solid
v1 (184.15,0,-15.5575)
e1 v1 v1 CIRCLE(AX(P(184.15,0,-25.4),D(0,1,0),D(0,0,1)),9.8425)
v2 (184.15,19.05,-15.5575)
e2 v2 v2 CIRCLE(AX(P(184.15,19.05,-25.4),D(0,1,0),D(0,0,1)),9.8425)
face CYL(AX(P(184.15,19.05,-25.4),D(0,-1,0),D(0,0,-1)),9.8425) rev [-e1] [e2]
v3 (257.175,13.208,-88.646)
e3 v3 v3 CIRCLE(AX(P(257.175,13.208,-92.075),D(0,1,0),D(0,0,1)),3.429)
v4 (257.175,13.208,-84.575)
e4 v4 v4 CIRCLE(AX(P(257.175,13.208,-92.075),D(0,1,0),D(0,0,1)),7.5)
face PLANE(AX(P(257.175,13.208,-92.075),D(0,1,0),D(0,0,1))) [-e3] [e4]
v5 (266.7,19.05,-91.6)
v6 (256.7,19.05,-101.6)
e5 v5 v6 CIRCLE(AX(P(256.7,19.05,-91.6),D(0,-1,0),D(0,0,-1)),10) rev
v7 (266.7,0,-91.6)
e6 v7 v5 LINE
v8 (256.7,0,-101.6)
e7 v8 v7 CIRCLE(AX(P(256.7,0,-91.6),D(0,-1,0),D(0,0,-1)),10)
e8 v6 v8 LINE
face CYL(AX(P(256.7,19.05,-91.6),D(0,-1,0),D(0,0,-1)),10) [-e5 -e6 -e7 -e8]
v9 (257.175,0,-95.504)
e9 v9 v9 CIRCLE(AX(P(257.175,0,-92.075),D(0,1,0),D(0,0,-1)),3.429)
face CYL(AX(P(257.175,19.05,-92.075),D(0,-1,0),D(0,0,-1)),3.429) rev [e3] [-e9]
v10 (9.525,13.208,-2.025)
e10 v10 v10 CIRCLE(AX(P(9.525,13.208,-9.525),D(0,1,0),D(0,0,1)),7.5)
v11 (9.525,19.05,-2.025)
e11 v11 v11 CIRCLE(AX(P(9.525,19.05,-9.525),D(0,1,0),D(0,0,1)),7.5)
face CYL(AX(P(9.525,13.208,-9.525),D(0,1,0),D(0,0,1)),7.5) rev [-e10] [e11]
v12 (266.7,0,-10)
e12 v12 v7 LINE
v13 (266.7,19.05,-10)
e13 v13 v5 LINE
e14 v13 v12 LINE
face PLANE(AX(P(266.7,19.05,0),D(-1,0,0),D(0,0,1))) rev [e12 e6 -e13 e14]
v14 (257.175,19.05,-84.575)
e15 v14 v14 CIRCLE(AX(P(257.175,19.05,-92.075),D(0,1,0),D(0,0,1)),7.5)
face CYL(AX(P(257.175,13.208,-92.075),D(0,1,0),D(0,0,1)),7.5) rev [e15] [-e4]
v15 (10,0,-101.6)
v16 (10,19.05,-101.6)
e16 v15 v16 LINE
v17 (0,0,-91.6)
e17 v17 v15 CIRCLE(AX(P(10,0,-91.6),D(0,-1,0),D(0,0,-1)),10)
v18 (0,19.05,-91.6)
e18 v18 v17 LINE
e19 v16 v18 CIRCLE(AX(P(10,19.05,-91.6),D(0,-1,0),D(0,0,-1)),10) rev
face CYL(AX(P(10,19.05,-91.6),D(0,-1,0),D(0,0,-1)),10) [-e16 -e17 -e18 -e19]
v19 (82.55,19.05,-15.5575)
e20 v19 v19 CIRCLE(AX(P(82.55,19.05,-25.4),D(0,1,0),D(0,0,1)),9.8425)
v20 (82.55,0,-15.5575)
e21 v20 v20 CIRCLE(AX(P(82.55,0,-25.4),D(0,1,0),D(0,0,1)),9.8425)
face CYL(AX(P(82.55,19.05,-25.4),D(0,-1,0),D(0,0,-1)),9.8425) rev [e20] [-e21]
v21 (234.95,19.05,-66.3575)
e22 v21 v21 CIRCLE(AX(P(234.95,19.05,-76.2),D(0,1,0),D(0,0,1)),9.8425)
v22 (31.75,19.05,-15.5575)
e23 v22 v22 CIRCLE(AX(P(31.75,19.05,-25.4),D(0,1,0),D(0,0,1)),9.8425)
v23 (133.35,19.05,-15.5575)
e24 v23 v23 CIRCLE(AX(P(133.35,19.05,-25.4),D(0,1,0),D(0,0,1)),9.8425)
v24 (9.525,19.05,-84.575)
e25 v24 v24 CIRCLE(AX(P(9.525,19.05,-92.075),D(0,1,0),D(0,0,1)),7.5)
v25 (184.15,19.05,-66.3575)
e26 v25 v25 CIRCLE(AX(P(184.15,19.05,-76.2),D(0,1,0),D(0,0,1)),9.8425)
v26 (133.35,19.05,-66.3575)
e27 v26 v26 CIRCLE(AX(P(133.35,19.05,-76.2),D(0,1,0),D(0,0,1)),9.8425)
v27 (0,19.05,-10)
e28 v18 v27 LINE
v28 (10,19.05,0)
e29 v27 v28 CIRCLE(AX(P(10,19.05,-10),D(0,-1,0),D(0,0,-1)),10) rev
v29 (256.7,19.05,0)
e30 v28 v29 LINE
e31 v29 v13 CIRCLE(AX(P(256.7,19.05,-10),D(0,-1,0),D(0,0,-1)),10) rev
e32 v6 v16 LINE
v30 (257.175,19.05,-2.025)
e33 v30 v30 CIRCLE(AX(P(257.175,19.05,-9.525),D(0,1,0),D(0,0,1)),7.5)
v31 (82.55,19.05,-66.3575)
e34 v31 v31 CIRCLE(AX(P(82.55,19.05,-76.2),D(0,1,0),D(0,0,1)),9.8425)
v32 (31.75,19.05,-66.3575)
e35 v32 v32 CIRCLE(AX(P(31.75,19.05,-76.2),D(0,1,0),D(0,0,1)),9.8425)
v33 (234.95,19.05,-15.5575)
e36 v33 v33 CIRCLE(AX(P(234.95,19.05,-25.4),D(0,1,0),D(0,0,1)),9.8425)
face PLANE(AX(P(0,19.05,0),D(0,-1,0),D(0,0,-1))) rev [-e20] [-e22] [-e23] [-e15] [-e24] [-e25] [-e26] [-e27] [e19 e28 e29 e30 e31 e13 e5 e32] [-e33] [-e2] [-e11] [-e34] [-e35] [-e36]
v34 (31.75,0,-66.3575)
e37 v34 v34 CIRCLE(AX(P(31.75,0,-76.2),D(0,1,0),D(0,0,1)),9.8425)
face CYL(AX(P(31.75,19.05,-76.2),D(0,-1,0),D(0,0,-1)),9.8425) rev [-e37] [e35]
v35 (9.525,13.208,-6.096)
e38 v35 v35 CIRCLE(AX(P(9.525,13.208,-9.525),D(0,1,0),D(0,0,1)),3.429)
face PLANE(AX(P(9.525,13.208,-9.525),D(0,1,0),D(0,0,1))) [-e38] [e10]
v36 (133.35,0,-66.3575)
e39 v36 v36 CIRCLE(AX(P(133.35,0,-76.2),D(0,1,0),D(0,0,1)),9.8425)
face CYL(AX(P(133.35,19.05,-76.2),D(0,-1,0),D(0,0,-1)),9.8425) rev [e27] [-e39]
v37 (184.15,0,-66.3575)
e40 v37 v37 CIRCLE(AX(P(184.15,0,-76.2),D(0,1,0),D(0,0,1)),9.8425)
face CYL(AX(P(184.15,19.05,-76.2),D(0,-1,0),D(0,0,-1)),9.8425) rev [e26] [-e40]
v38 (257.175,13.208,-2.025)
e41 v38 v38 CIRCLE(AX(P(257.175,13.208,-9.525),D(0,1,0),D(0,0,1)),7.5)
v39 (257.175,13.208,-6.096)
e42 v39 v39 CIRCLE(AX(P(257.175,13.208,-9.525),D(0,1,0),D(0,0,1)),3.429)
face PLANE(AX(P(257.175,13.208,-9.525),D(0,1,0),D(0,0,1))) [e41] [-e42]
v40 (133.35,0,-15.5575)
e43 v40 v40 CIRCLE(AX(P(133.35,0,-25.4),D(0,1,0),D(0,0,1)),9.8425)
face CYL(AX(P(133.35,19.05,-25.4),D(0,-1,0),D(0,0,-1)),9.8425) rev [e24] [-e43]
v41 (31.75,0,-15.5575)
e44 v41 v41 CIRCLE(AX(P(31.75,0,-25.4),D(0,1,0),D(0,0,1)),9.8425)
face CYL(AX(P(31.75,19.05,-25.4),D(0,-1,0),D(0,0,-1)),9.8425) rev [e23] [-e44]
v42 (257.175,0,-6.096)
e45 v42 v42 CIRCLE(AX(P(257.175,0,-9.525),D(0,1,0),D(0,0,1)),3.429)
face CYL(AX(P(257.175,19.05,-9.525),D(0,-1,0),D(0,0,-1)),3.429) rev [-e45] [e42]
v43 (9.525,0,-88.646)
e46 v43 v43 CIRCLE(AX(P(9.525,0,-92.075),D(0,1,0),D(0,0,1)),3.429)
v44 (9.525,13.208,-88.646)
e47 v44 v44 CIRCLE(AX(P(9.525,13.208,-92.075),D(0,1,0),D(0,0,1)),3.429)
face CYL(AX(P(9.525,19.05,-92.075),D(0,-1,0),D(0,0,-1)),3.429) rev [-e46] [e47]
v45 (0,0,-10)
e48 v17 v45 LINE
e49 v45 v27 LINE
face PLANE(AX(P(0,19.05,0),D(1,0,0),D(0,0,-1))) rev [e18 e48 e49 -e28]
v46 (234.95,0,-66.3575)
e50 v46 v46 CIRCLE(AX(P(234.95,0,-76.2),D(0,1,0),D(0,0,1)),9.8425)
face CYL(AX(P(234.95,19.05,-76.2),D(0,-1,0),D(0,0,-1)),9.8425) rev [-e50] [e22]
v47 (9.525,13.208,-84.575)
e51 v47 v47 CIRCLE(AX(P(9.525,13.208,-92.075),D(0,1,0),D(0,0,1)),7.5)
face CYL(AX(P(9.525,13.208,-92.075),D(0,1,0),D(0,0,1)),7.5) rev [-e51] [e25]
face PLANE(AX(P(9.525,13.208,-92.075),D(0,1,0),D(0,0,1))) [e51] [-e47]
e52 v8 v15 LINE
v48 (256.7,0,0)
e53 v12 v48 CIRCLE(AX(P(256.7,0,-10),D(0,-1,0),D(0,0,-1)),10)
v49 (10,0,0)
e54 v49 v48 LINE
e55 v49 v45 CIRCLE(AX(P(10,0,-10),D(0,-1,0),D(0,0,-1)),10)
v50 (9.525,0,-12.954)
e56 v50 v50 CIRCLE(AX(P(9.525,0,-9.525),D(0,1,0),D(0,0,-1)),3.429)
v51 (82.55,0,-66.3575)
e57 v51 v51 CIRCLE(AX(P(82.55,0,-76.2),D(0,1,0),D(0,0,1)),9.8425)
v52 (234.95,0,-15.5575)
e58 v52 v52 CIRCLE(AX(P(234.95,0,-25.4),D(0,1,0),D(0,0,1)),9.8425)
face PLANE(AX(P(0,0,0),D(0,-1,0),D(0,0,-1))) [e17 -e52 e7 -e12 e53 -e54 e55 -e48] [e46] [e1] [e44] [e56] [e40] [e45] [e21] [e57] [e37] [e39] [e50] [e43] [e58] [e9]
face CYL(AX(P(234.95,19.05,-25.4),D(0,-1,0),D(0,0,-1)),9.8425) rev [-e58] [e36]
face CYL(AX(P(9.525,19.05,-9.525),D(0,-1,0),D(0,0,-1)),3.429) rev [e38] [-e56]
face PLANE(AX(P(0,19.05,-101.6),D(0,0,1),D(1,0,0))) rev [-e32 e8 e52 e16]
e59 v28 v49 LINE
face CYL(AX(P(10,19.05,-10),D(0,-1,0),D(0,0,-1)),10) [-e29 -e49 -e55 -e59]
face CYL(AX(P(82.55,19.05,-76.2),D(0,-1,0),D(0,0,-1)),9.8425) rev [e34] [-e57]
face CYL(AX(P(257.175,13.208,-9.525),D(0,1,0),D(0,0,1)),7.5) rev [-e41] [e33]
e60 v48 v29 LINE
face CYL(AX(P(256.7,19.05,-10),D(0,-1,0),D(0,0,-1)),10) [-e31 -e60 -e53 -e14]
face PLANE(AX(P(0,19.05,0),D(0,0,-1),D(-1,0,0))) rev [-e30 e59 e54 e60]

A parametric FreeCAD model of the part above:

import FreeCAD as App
import Part
import Sketcher
from FreeCAD import Vector
Q = App.Units.Quantity


def edges_at(feature, points):
    """Names of the edges that pass closest to the given points."""
    edges = feature.Shape.Edges
    near = lambda p: min(range(len(edges)), key=lambda i: edges[i].distToShape(Part.Vertex(*p))[0])
    return sorted({f"Edge{near(p) + 1}" for p in points})


def add_polygon(sketch, points):
    """Adds a closed chain of lines whose ends are joined by coincident constraints."""
    first, n = sketch.GeometryCount, len(points)
    for a, b in zip(points, points[1:] + points[:1]):
        sketch.addGeometry(Part.LineSegment(App.Vector(*a, 0), App.Vector(*b, 0)), False)
    for i in range(n):
        sketch.addConstraint(Sketcher.Constraint("Coincident", first + i, 2, first + (i + 1) % n, 1))

doc = App.newDocument("Part")
body = doc.addObject("PartDesign::Body", "Body")

# Sketch on XZ plane
sketch1 = body.newObject("Sketcher::SketchObject", "Sketch")
sketch1.AttachmentSupport = (doc.getObject("XZ_Plane"), [""])
sketch1.MapMode = "FlatFace"
add_polygon(sketch1, [(0, -101.6), (0, 0), (266.7, 0), (266.7, -101.6)])  # lines 0-3
sketch1.addGeometry(Part.Circle(Vector(9.5, -9.5, 0), Vector(0, 0, 1), 3.4), False)  # 4
sketch1.addGeometry(Part.Circle(Vector(31.8, -25.4, 0), Vector(0, 0, 1), 9.8), False)  # 5
sketch1.addGeometry(Part.Circle(Vector(82.5, -25.4, 0), Vector(0, 0, 1), 9.8), False)  # 6
sketch1.addGeometry(Part.Circle(Vector(133.3, -25.4, 0), Vector(0, 0, 1), 9.8), False)  # 7
sketch1.addGeometry(Part.Circle(Vector(184.2, -25.4, 0), Vector(0, 0, 1), 9.8), False)  # 8
sketch1.addGeometry(Part.Circle(Vector(257.2, -9.5, 0), Vector(0, 0, 1), 3.4), False)  # 9
sketch1.addGeometry(Part.Circle(Vector(234.9, -25.4, 0), Vector(0, 0, 1), 9.8), False)  # 10
sketch1.addGeometry(Part.Circle(Vector(31.8, -76.2, 0), Vector(0, 0, 1), 9.8), False)  # 11
sketch1.addGeometry(Part.Circle(Vector(9.5, -92.1, 0), Vector(0, 0, 1), 3.4), False)  # 12
sketch1.addGeometry(Part.Circle(Vector(82.5, -76.2, 0), Vector(0, 0, 1), 9.8), False)  # 13
sketch1.addGeometry(Part.Circle(Vector(133.3, -76.2, 0), Vector(0, 0, 1), 9.8), False)  # 14
sketch1.addGeometry(Part.Circle(Vector(184.2, -76.2, 0), Vector(0, 0, 1), 9.8), False)  # 15
sketch1.addGeometry(Part.Circle(Vector(234.9, -76.2, 0), Vector(0, 0, 1), 9.8), False)  # 16
sketch1.addGeometry(Part.Circle(Vector(257.2, -92.1, 0), Vector(0, 0, 1), 3.4), False)  # 17
sketch1.addConstraint([
    Sketcher.Constraint("Vertical", 0),
    Sketcher.Constraint("Horizontal", 1),
    Sketcher.Constraint("Vertical", 2),
    Sketcher.Constraint("Horizontal", 3),
    Sketcher.Constraint("Coincident", 0, 2, -1, 1),
    Sketcher.Constraint("Equal", 5, 6),
    Sketcher.Constraint("Equal", 6, 7),
    Sketcher.Constraint("Equal", 7, 8),
    Sketcher.Constraint("Equal", 4, 9),
    Sketcher.Constraint("Equal", 8, 10),
    Sketcher.Constraint("Equal", 10, 11),
    Sketcher.Constraint("Equal", 9, 12),
    Sketcher.Constraint("Equal", 11, 13),
    Sketcher.Constraint("Equal", 13, 14),
    Sketcher.Constraint("Equal", 14, 15),
    Sketcher.Constraint("Equal", 15, 16),
    Sketcher.Constraint("Equal", 12, 17),
    Sketcher.Constraint("Horizontal", 5, 3, 6, 3),
    Sketcher.Constraint("Horizontal", 6, 3, 7, 3),
    Sketcher.Constraint("Horizontal", 7, 3, 8, 3),
    Sketcher.Constraint("Horizontal", 4, 3, 9, 3),
    Sketcher.Constraint("Horizontal", 8, 3, 10, 3),
    Sketcher.Constraint("Horizontal", 11, 3, 13, 3),
    Sketcher.Constraint("Horizontal", 13, 3, 14, 3),
    Sketcher.Constraint("Horizontal", 14, 3, 15, 3),
    Sketcher.Constraint("Horizontal", 15, 3, 16, 3),
    Sketcher.Constraint("Horizontal", 12, 3, 17, 3),
    Sketcher.Constraint("Vertical", 5, 3, 11, 3),
    Sketcher.Constraint("Vertical", 4, 3, 12, 3),
    Sketcher.Constraint("Vertical", 6, 3, 13, 3),
    Sketcher.Constraint("Vertical", 7, 3, 14, 3),
    Sketcher.Constraint("Vertical", 8, 3, 15, 3),
    Sketcher.Constraint("Vertical", 10, 3, 16, 3),
    Sketcher.Constraint("Vertical", 9, 3, 17, 3),
    Sketcher.Constraint("Diameter", 4, Q("0.27 in")),
    Sketcher.Constraint("DistanceY", 0, 1, 0, 2, Q("4 in")),
    Sketcher.Constraint("Diameter", 5, Q("0.775 in")),
    Sketcher.Constraint("DistanceX", 1, 1, 1, 2, Q("10.5 in")),
    Sketcher.Constraint("DistanceY", 5, 3, -1, 1, Q("1 in")),
    Sketcher.Constraint("DistanceY", 11, 3, -1, 1, Q("3 in")),
    Sketcher.Constraint("DistanceX", 5, 3, 6, 3, Q("2 in")),
    Sketcher.Constraint("DistanceX", 6, 3, 7, 3, Q("2 in")),
    Sketcher.Constraint("DistanceX", 7, 3, 8, 3, Q("2 in")),
    Sketcher.Constraint("DistanceX", 8, 3, 10, 3, Q("2 in")),
    Sketcher.Constraint("DistanceX", -1, 1, 5, 3, Q("1.25 in")),
    Sketcher.Constraint("DistanceX", 4, 3, 9, 3, Q("9.75 in")),
    Sketcher.Constraint("DistanceY", 12, 3, 4, 3, Q("3.25 in")),
    Sketcher.Constraint("DistanceX", -1, 1, 4, 3, Q("0.375 in")),
    Sketcher.Constraint("DistanceY", 4, 3, -1, 1, Q("0.375 in")),
])
pad1 = body.newObject("PartDesign::Pad", "Pad")
pad1.Profile = sketch1
pad1.Length = Q("0.75 in")
pad1.Reversed = True
doc.recompute()

fillet = body.newObject("PartDesign::Fillet", "Fillet")
fillet.Base = (pad1, edges_at(pad1, [
    (0, 9.525, -101.6),
    (266.7, 9.525, -101.6),
    (266.7, 9.525, 0),
    (0, 9.525, 0),
]))
fillet.Radius = 10

# Sketch on XZ plane
sketch2 = body.newObject("Sketcher::SketchObject", "Sketch001")
sketch2.AttachmentSupport = (doc.getObject("XZ_Plane"), [""])
sketch2.MapMode = "FlatFace"
sketch2.AttachmentOffset = App.Placement(Vector(0, 0, -0.75 * 25.4), App.Rotation())
sketch2.addGeometry([
    Part.Circle(Vector(10, -92, 0), Vector(0, 0, 1), 8),
    Part.Circle(Vector(257, -92, 0), Vector(0, 0, 1), 8),
    Part.Circle(Vector(257, -10, 0), Vector(0, 0, 1), 8),
    Part.Circle(Vector(10, -10, 0), Vector(0, 0, 1), 8),
], False)
sketch2.addConstraint([
    Sketcher.Constraint("Equal", 0, 1),
    Sketcher.Constraint("Equal", 1, 2),
    Sketcher.Constraint("Equal", 2, 3),
    Sketcher.Constraint("Horizontal", 0, 3, 1, 3),
    Sketcher.Constraint("Horizontal", 2, 3, 3, 3),
    Sketcher.Constraint("Vertical", 1, 3, 2, 3),
    Sketcher.Constraint("Vertical", 0, 3, 3, 3),
    Sketcher.Constraint("Diameter", 0, Q("15 mm")),
    Sketcher.Constraint("DistanceX", 0, 3, 1, 3, Q("9.75 in")),
    Sketcher.Constraint("DistanceY", 1, 3, 2, 3, Q("3.25 in")),
    Sketcher.Constraint("DistanceX", -1, 1, 0, 3, Q("0.375 in")),
    Sketcher.Constraint("DistanceY", 0, 3, -1, 1, Q("3.625 in")),
])
pocket1 = body.newObject("PartDesign::Pocket", "Pocket")
pocket1.Profile = sketch2
pocket1.Length = Q("0.23 in")
pocket1.Reversed = True

doc.recompute()
